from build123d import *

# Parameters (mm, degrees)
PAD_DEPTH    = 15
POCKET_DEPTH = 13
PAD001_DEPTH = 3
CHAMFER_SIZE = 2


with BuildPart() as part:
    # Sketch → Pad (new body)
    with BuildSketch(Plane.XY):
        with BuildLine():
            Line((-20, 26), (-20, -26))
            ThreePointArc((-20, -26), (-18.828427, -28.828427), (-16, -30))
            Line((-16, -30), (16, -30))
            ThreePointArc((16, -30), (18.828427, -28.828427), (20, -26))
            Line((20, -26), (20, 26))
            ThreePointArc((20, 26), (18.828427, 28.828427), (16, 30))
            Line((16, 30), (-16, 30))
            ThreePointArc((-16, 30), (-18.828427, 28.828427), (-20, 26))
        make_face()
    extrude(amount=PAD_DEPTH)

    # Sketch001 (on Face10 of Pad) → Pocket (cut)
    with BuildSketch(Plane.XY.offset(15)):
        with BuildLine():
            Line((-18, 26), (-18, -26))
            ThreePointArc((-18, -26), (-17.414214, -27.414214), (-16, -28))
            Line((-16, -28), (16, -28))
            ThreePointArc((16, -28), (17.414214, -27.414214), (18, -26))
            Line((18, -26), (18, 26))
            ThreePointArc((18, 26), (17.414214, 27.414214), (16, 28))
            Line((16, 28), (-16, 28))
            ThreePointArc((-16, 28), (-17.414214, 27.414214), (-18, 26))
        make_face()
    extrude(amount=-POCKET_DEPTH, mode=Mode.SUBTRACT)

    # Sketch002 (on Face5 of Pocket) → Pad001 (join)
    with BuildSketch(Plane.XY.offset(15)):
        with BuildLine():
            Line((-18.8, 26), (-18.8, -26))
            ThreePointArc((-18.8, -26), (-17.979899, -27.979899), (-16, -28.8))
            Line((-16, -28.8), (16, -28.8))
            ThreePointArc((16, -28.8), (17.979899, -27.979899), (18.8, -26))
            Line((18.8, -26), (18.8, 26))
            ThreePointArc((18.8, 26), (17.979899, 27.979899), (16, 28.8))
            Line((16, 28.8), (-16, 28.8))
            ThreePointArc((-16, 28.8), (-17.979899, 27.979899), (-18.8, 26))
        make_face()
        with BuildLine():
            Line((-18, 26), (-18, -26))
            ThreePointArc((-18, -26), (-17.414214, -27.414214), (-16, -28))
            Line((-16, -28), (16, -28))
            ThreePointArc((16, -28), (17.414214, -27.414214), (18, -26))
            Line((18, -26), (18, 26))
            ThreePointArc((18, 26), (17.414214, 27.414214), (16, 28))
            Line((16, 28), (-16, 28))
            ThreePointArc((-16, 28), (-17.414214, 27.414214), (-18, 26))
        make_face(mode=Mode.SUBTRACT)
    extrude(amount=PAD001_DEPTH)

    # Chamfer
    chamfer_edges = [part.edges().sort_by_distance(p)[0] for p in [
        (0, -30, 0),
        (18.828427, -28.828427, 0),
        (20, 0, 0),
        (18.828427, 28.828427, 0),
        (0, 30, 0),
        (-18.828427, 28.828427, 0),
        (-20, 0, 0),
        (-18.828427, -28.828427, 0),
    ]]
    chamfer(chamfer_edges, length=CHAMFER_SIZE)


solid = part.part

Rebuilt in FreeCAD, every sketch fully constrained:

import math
import FreeCAD as App
import Part
import Sketcher
Q = App.Units.Quantity


def edges_at(feature, points):
    """Names of the edges that pass closest to the given points."""
    edges = feature.Shape.Edges
    near = lambda p: min(range(len(edges)), key=lambda i: edges[i].distToShape(Part.Vertex(*p))[0])
    return sorted({f"Edge{near(p) + 1}" for p in points})

doc = App.newDocument("Part")
params = doc.addObject("Spreadsheet::Sheet", "Params")
for row, (alias, value) in enumerate([
    ("sketch1_radius", "4 mm"),
    ("sketch1_width", "32 mm"),
    ("sketch1_height", "52 mm"),
    ("pad1_length", "15 mm"),
    ("sketch2_radius", "1.999999 mm"),
    ("sketch2_width", "32 mm"),
    ("sketch2_height", "52 mm"),
    ("pocket1_length", "13 mm"),
    ("sketch3_radius", "1.999999 mm"),
    ("sketch3_radius2", "2.8 mm"),
    ("sketch3_width", "32 mm"),
    ("sketch3_height", "52 mm"),
    ("pad2_length", "3 mm"),
    ("chamfer_size", "2 mm"),
], start=1):
    params.set(f"A{row}", alias)
    params.set(f"B{row}", "=" + value)
    params.setAlias(f"B{row}", alias)

body = doc.addObject("PartDesign::Body", "Body")

sketch1 = doc.addObject("Sketcher::SketchObject", "Sketch")
body.addObject(sketch1)
sketch1.AttachmentSupport = (doc.XY_Plane, [""])
sketch1.MapMode = "FlatFace"
sketch1.addGeometry([
    Part.LineSegment(App.Vector(-20, 26, 0), App.Vector(-20, -26, 0)),
    Part.ArcOfCircle(Part.Circle(App.Vector(-16, -26, 0), App.Vector(0, 0, 1), 4), math.radians(-180), math.radians(-90)),
    Part.LineSegment(App.Vector(-16, -30, 0), App.Vector(16, -30, 0)),
    Part.ArcOfCircle(Part.Circle(App.Vector(16, -26, 0), App.Vector(0, 0, 1), 4), math.radians(-90), math.radians(0)),
    Part.LineSegment(App.Vector(20, -26, 0), App.Vector(20, 26, 0)),
    Part.ArcOfCircle(Part.Circle(App.Vector(16, 26, 0), App.Vector(0, 0, 1), 4), math.radians(0), math.radians(90)),
    Part.LineSegment(App.Vector(16, 30, 0), App.Vector(-16, 30, 0)),
    Part.ArcOfCircle(Part.Circle(App.Vector(-16, 26, 0), App.Vector(0, 0, 1), 4), math.radians(90), math.radians(180)),
], False)
sketch1.addConstraint([
    Sketcher.Constraint("Tangent", 0, 2, 1, 1),
    Sketcher.Constraint("Tangent", 1, 2, 2, 1),
    Sketcher.Constraint("Tangent", 2, 2, 3, 1),
    Sketcher.Constraint("Tangent", 3, 2, 4, 1),
    Sketcher.Constraint("Tangent", 4, 2, 5, 1),
    Sketcher.Constraint("Tangent", 5, 2, 6, 1),
    Sketcher.Constraint("Tangent", 6, 2, 7, 1),
    Sketcher.Constraint("Tangent", 7, 2, 0, 1),
    Sketcher.Constraint("Vertical", 0),
    Sketcher.Constraint("Horizontal", 2),
    Sketcher.Constraint("Vertical", 4),
    Sketcher.Constraint("Horizontal", 6),
    Sketcher.Constraint("Equal", 1, 3),
    Sketcher.Constraint("Equal", 3, 5),
    Sketcher.Constraint("Equal", 5, 7),
    Sketcher.Constraint("Symmetric", 1, 3, 5, 3, -1, 1),
    Sketcher.Constraint("Radius", 1, Q("4 mm")),
    Sketcher.Constraint("DistanceX", 2, 1, 2, 2, Q("32 mm")),
    Sketcher.Constraint("DistanceY", 0, 2, 0, 1, Q("52 mm")),
])
sketch1.setExpression("Constraints[16]", "Params.sketch1_radius")
sketch1.setExpression("Constraints[17]", "Params.sketch1_width")
sketch1.setExpression("Constraints[18]", "Params.sketch1_height")
pad1 = doc.addObject("PartDesign::Pad", "Pad")
body.addObject(pad1)
pad1.Profile = sketch1
pad1.setExpression("Length", "Params.pad1_length")

sketch2 = doc.addObject("Sketcher::SketchObject", "Sketch001")
body.addObject(sketch2)
sketch2.AttachmentSupport = (doc.XY_Plane, [""])
sketch2.MapMode = "FlatFace"
sketch2.AttachmentOffset = App.Placement(App.Vector(0, 0, 15), App.Rotation())
sketch2.addGeometry([
    Part.LineSegment(App.Vector(-18, 26, 0), App.Vector(-18, -26, 0)),
    Part.ArcOfCircle(Part.Circle(App.Vector(-16, -26, 0), App.Vector(0, 0, 1), 2), math.radians(180), math.radians(270)),
    Part.LineSegment(App.Vector(-16, -28, 0), App.Vector(16, -28, 0)),
    Part.ArcOfCircle(Part.Circle(App.Vector(16, -26, 0), App.Vector(0, 0, 1), 2), math.radians(-90), math.radians(0)),
    Part.LineSegment(App.Vector(18, -26, 0), App.Vector(18, 26, 0)),
    Part.ArcOfCircle(Part.Circle(App.Vector(16, 26, 0), App.Vector(0, 0, 1), 2), math.radians(0), math.radians(90)),
    Part.LineSegment(App.Vector(16, 28, 0), App.Vector(-16, 28, 0)),
    Part.ArcOfCircle(Part.Circle(App.Vector(-16, 26, 0), App.Vector(0, 0, 1), 2), math.radians(90), math.radians(180)),
], False)
sketch2.addConstraint([
    Sketcher.Constraint("Tangent", 0, 2, 1, 1),
    Sketcher.Constraint("Tangent", 1, 2, 2, 1),
    Sketcher.Constraint("Tangent", 2, 2, 3, 1),
    Sketcher.Constraint("Tangent", 3, 2, 4, 1),
    Sketcher.Constraint("Tangent", 4, 2, 5, 1),
    Sketcher.Constraint("Tangent", 5, 2, 6, 1),
    Sketcher.Constraint("Tangent", 6, 2, 7, 1),
    Sketcher.Constraint("Tangent", 7, 2, 0, 1),
    Sketcher.Constraint("Vertical", 0),
    Sketcher.Constraint("Horizontal", 2),
    Sketcher.Constraint("Vertical", 4),
    Sketcher.Constraint("Horizontal", 6),
    Sketcher.Constraint("Equal", 1, 3),
    Sketcher.Constraint("Equal", 3, 5),
    Sketcher.Constraint("Equal", 5, 7),
    Sketcher.Constraint("Symmetric", 1, 3, 5, 3, -1, 1),
    Sketcher.Constraint("Radius", 1, Q("1.999999 mm")),
    Sketcher.Constraint("DistanceX", 2, 1, 2, 2, Q("32 mm")),
    Sketcher.Constraint("DistanceY", 0, 2, 0, 1, Q("52 mm")),
])
sketch2.setExpression("Constraints[16]", "Params.sketch2_radius")
sketch2.setExpression("Constraints[17]", "Params.sketch2_width")
sketch2.setExpression("Constraints[18]", "Params.sketch2_height")
pocket1 = doc.addObject("PartDesign::Pocket", "Pocket")
body.addObject(pocket1)
pocket1.Profile = sketch2
pocket1.setExpression("Length", "Params.pocket1_length")

sketch3 = doc.addObject("Sketcher::SketchObject", "Sketch002")
body.addObject(sketch3)
sketch3.AttachmentSupport = (doc.XY_Plane, [""])
sketch3.MapMode = "FlatFace"
sketch3.AttachmentOffset = App.Placement(App.Vector(0, 0, 15), App.Rotation())
sketch3.addGeometry([
    Part.LineSegment(App.Vector(-18.8, 26, 0), App.Vector(-18.8, -26, 0)),
    Part.ArcOfCircle(Part.Circle(App.Vector(-16, -26, 0), App.Vector(0, 0, 1), 2.8), math.radians(180), math.radians(270)),
    Part.LineSegment(App.Vector(-16, -28.8, 0), App.Vector(16, -28.8, 0)),
    Part.ArcOfCircle(Part.Circle(App.Vector(16, -26, 0), App.Vector(0, 0, 1), 2.8), math.radians(-90), math.radians(0)),
    Part.LineSegment(App.Vector(18.8, -26, 0), App.Vector(18.8, 26, 0)),
    Part.ArcOfCircle(Part.Circle(App.Vector(16, 26, 0), App.Vector(0, 0, 1), 2.8), math.radians(0), math.radians(90)),
    Part.LineSegment(App.Vector(16, 28.8, 0), App.Vector(-16, 28.8, 0)),
    Part.ArcOfCircle(Part.Circle(App.Vector(-16, 26, 0), App.Vector(0, 0, 1), 2.8), math.radians(90), math.radians(180)),
    Part.LineSegment(App.Vector(-18, -26, 0), App.Vector(-18, 26, 0)),
    Part.ArcOfCircle(Part.Circle(App.Vector(-16, 26, 0), App.Vector(0, 0, 1), 2), math.radians(90), math.radians(180)),
    Part.LineSegment(App.Vector(-16, 28, 0), App.Vector(16, 28, 0)),
    Part.ArcOfCircle(Part.Circle(App.Vector(16, 26, 0), App.Vector(0, 0, 1), 2), math.radians(0), math.radians(90)),
    Part.LineSegment(App.Vector(18, 26, 0), App.Vector(18, -26, 0)),
    Part.ArcOfCircle(Part.Circle(App.Vector(16, -26, 0), App.Vector(0, 0, 1), 2), math.radians(-90), math.radians(0)),
    Part.LineSegment(App.Vector(16, -28, 0), App.Vector(-16, -28, 0)),
    Part.ArcOfCircle(Part.Circle(App.Vector(-16, -26, 0), App.Vector(0, 0, 1), 2), math.radians(180), math.radians(270)),
], False)
sketch3.addConstraint([
    Sketcher.Constraint("Tangent", 0, 2, 1, 1),
    Sketcher.Constraint("Tangent", 1, 2, 2, 1),
    Sketcher.Constraint("Tangent", 2, 2, 3, 1),
    Sketcher.Constraint("Tangent", 3, 2, 4, 1),
    Sketcher.Constraint("Tangent", 4, 2, 5, 1),
    Sketcher.Constraint("Tangent", 5, 2, 6, 1),
    Sketcher.Constraint("Tangent", 6, 2, 7, 1),
    Sketcher.Constraint("Tangent", 7, 2, 0, 1),
    Sketcher.Constraint("Tangent", 8, 2, 9, 2),
    Sketcher.Constraint("Tangent", 9, 1, 10, 1),
    Sketcher.Constraint("Tangent", 10, 2, 11, 2),
    Sketcher.Constraint("Tangent", 11, 1, 12, 1),
    Sketcher.Constraint("Tangent", 12, 2, 13, 2),
    Sketcher.Constraint("Tangent", 13, 1, 14, 1),
    Sketcher.Constraint("Tangent", 14, 2, 15, 2),
    Sketcher.Constraint("Tangent", 15, 1, 8, 1),
    Sketcher.Constraint("Vertical", 0),
    Sketcher.Constraint("Horizontal", 2),
    Sketcher.Constraint("Vertical", 4),
    Sketcher.Constraint("Horizontal", 6),
    Sketcher.Constraint("Vertical", 8),
    Sketcher.Constraint("Horizontal", 10),
    Sketcher.Constraint("Vertical", 12),
    Sketcher.Constraint("Horizontal", 14),
    Sketcher.Constraint("Coincident", 9, 3, 7, 3),
    Sketcher.Constraint("Coincident", 11, 3, 5, 3),
    Sketcher.Constraint("Coincident", 13, 3, 3, 3),
    Sketcher.Constraint("Equal", 1, 3),
    Sketcher.Constraint("Equal", 3, 5),
    Sketcher.Constraint("Equal", 5, 7),
    Sketcher.Constraint("Equal", 13, 15),
    Sketcher.Constraint("Symmetric", 1, 3, 5, 3, -1, 1),
    Sketcher.Constraint("Radius", 9, Q("1.999999 mm")),
    Sketcher.Constraint("Radius", 1, Q("2.8 mm")),
    Sketcher.Constraint("DistanceX", 2, 1, 2, 2, Q("32 mm")),
    Sketcher.Constraint("DistanceY", 0, 2, 0, 1, Q("52 mm")),
])
sketch3.setExpression("Constraints[32]", "Params.sketch3_radius")
sketch3.setExpression("Constraints[33]", "Params.sketch3_radius2")
sketch3.setExpression("Constraints[34]", "Params.sketch3_width")
sketch3.setExpression("Constraints[35]", "Params.sketch3_height")
pad2 = doc.addObject("PartDesign::Pad", "Pad001")
body.addObject(pad2)
pad2.Profile = sketch3
pad2.setExpression("Length", "Params.pad2_length")
doc.recompute()

chamfer = doc.addObject("PartDesign::Chamfer", "Chamfer")
body.addObject(chamfer)
chamfer.Base = (pad2, edges_at(pad2, [
    (0, -30, 0),
    (18.828, -28.828, 0),
    (20, 0, 0),
    (18.828, 28.828, 0),
    (0, 30, 0),
    (-18.828, 28.828, 0),
    (-20, 0, 0),
    (-18.828, -28.828, 0),
]))
chamfer.setExpression("Size", "Params.chamfer_size")

doc.recompute()
